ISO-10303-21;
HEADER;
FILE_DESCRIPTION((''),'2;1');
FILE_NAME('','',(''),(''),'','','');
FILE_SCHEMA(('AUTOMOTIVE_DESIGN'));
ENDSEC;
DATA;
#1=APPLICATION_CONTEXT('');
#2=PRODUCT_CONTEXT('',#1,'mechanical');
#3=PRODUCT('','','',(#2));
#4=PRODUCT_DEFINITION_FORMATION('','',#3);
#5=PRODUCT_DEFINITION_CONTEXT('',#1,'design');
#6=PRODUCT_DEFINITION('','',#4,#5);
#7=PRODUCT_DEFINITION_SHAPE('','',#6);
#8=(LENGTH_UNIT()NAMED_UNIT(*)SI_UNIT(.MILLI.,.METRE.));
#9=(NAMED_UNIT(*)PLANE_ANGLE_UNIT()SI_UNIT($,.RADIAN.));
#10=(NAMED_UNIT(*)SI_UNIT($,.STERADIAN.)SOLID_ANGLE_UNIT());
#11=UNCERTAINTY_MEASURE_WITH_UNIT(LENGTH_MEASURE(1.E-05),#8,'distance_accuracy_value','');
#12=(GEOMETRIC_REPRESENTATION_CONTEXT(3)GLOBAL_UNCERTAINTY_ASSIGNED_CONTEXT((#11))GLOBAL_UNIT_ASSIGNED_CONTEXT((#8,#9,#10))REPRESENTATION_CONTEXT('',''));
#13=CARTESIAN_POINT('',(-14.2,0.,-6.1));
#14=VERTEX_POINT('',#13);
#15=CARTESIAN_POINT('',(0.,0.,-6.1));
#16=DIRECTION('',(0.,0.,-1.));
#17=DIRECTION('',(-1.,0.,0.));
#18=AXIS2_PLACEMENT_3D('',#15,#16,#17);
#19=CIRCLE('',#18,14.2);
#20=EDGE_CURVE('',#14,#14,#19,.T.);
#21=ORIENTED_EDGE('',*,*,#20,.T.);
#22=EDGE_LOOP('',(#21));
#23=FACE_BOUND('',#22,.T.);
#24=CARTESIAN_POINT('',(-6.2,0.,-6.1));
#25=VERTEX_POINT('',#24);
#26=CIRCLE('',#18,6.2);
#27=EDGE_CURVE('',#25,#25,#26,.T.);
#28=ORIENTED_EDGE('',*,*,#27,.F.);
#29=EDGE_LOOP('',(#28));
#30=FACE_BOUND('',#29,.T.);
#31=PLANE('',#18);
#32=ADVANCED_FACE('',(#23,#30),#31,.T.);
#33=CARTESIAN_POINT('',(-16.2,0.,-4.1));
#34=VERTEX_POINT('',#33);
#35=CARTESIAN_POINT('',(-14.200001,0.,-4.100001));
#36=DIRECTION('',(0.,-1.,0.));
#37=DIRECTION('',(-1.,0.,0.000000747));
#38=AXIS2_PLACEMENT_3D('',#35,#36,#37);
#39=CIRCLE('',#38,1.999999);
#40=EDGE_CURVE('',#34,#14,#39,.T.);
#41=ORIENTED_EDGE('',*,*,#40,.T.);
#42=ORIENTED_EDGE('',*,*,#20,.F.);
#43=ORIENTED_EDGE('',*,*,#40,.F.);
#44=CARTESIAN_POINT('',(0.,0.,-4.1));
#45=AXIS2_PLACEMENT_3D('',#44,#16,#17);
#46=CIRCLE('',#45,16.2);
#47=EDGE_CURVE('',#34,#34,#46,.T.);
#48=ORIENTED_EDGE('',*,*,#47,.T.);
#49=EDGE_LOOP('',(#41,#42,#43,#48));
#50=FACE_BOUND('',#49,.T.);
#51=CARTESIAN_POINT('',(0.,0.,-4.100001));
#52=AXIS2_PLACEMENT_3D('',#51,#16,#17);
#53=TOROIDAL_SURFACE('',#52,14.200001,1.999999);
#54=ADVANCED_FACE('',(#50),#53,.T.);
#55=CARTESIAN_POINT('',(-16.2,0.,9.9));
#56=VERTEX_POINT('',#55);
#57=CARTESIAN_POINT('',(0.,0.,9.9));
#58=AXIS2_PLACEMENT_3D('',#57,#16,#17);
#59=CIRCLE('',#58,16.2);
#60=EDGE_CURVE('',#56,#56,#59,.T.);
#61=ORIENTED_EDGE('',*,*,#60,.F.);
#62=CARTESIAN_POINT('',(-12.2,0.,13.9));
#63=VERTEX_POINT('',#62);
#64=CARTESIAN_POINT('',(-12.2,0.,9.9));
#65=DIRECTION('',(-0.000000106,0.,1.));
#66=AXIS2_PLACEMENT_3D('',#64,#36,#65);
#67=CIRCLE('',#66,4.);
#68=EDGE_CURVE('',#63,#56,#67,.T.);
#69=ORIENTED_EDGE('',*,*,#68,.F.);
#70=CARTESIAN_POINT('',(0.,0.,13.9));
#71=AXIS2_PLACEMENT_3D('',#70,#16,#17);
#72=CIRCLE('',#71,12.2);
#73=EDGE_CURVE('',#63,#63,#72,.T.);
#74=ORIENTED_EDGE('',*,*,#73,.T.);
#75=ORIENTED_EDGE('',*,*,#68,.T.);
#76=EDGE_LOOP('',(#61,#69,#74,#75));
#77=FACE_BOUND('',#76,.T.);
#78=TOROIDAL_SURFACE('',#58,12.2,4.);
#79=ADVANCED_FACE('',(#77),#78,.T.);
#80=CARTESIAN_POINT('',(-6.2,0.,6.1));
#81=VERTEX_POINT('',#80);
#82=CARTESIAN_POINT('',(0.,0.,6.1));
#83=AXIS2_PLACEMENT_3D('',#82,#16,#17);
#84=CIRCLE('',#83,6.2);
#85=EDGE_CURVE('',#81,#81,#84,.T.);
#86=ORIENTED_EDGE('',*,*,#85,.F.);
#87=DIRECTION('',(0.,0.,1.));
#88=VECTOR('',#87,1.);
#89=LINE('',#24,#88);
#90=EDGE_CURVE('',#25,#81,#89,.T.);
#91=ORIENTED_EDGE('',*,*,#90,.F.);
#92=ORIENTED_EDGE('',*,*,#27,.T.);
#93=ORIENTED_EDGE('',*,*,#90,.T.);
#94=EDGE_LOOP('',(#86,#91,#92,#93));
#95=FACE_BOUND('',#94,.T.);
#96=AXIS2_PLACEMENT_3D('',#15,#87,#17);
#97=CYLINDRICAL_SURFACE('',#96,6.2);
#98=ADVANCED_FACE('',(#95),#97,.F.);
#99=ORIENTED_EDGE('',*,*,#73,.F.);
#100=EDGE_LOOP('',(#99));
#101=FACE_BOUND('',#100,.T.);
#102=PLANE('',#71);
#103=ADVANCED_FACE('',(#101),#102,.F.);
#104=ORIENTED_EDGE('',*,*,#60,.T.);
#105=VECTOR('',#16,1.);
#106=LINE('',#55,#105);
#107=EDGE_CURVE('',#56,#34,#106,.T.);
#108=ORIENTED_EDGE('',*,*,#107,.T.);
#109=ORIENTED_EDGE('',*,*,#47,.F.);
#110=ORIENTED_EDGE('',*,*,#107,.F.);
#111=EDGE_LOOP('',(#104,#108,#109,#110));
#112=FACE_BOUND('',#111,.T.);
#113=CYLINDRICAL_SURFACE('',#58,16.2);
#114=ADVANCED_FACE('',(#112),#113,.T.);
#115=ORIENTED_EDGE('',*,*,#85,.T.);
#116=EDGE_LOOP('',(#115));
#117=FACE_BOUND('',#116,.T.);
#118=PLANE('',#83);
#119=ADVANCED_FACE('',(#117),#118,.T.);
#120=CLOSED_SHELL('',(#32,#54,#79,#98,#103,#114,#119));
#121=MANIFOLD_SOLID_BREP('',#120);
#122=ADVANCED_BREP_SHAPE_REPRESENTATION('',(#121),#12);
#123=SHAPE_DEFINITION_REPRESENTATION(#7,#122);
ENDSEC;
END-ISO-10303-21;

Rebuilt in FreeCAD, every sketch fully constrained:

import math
import FreeCAD as App
import Part
import Sketcher

V = App.Vector

doc = App.newDocument("Part")
body = doc.addObject("PartDesign::Body", "Body")

# Sketch on XZ plane
sketch1 = body.newObject("Sketcher::SketchObject", "Sketch")
sketch1.AttachmentSupport = (doc.getObject("XZ_Plane"), [""])
sketch1.MapMode = "FlatFace"
sketch1.addGeometry([
    Part.LineSegment(V(0, 6.1, 0), V(0, 13.9, 0)),  # 0
    Part.LineSegment(V(0, 13.9, 0), V(-12.2, 13.9, 0)),  # 1
    Part.ArcOfCircle(Part.Circle(V(-12.2, 9.9, 0), V(0, 0, 1), 4), math.radians(90), math.radians(180)),  # 2
    Part.LineSegment(V(-16.2, 9.9, 0), V(-16.2, -4.1, 0)),  # 3
    Part.ArcOfCircle(Part.Circle(V(-14.2, -4.1, 0), V(0, 0, 1), 2), math.radians(180), math.radians(270)),  # 4
    Part.LineSegment(V(-14.2, -6.1, 0), V(-6.2, -6.1, 0)),  # 5
    Part.LineSegment(V(-6.2, -6.1, 0), V(-6.2, 6.1, 0)),  # 6
    Part.LineSegment(V(-6.2, 6.1, 0), V(0, 6.1, 0)),  # 7
], False)
sketch1.addConstraint([
    Sketcher.Constraint("Coincident", 0, 2, 1, 1),
    Sketcher.Constraint("Tangent", 1, 2, 2, 1),
    Sketcher.Constraint("Tangent", 2, 2, 3, 1),
    Sketcher.Constraint("Tangent", 3, 2, 4, 1),
    Sketcher.Constraint("Tangent", 4, 2, 5, 1),
    Sketcher.Constraint("Coincident", 5, 2, 6, 1),
    Sketcher.Constraint("Coincident", 6, 2, 7, 1),
    Sketcher.Constraint("Coincident", 7, 2, 0, 1),
    Sketcher.Constraint("Vertical", 0),
    Sketcher.Constraint("Horizontal", 1),
    Sketcher.Constraint("Vertical", 3),
    Sketcher.Constraint("Horizontal", 5),
    Sketcher.Constraint("Vertical", 6),
    Sketcher.Constraint("Horizontal", 7),
    Sketcher.Constraint("PointOnObject", 0, 2, -2),
    Sketcher.Constraint("Equal", 1, 6),
    Sketcher.Constraint("Radius", 2, 4.0),
    Sketcher.Constraint("Radius", 4, 1.999999),
    Sketcher.Constraint("DistanceX", 5, 1, 5, 2, 8.0),
    Sketcher.Constraint("DistanceY", 3, 2, 3, 1, 14.0),
    Sketcher.Constraint("DistanceX", 1, 2, 1, 1, 12.2),
    Sketcher.Constraint("DistanceY", -1, 1, 2, 3, 9.9),
])
revolution = body.newObject("PartDesign::Revolution", "Revolution")
revolution.Profile = sketch1
revolution.ReferenceAxis = (sketch1, ["V_Axis"])
revolution.Angle = 360

doc.recompute()
